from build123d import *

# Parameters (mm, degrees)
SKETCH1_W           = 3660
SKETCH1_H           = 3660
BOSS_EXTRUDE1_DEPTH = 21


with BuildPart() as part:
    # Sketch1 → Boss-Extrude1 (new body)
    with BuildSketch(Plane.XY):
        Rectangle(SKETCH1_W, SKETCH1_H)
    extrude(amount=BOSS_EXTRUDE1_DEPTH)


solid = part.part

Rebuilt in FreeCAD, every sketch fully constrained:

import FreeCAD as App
import Part
import Sketcher

doc = App.newDocument("Part")
body = doc.addObject("PartDesign::Body", "Body")

# Sketch on XY plane
sketch1 = doc.addObject("Sketcher::SketchObject", "Sketch")
body.addObject(sketch1)
sketch1.AttachmentSupport = (doc.XY_Plane, [""])
sketch1.MapMode = "FlatFace"
sketch1.addGeometry([
    Part.LineSegment(App.Vector(-1830, 1830, 0), App.Vector(-1830, -1830, 0)),
    Part.LineSegment(App.Vector(-1830, -1830, 0), App.Vector(1830, -1830, 0)),
    Part.LineSegment(App.Vector(1830, -1830, 0), App.Vector(1830, 1830, 0)),
    Part.LineSegment(App.Vector(1830, 1830, 0), App.Vector(-1830, 1830, 0)),
], False)
sketch1.addConstraint([
    Sketcher.Constraint("Coincident", 0, 2, 1, 1),
    Sketcher.Constraint("Coincident", 1, 2, 2, 1),
    Sketcher.Constraint("Coincident", 2, 2, 3, 1),
    Sketcher.Constraint("Coincident", 3, 2, 0, 1),
    Sketcher.Constraint("Vertical", 0),
    Sketcher.Constraint("Horizontal", 1),
    Sketcher.Constraint("Vertical", 2),
    Sketcher.Constraint("Horizontal", 3),
    Sketcher.Constraint("Symmetric", 0, 2, 2, 2, -1, 1),
    Sketcher.Constraint("Equal", 3, 0),
    Sketcher.Constraint("DistanceX", 1, 1, 1, 2, 3660.0),
])
pad1 = doc.addObject("PartDesign::Pad", "Pad")
body.addObject(pad1)
pad1.Profile = sketch1
pad1.Length = 21

doc.recompute()
